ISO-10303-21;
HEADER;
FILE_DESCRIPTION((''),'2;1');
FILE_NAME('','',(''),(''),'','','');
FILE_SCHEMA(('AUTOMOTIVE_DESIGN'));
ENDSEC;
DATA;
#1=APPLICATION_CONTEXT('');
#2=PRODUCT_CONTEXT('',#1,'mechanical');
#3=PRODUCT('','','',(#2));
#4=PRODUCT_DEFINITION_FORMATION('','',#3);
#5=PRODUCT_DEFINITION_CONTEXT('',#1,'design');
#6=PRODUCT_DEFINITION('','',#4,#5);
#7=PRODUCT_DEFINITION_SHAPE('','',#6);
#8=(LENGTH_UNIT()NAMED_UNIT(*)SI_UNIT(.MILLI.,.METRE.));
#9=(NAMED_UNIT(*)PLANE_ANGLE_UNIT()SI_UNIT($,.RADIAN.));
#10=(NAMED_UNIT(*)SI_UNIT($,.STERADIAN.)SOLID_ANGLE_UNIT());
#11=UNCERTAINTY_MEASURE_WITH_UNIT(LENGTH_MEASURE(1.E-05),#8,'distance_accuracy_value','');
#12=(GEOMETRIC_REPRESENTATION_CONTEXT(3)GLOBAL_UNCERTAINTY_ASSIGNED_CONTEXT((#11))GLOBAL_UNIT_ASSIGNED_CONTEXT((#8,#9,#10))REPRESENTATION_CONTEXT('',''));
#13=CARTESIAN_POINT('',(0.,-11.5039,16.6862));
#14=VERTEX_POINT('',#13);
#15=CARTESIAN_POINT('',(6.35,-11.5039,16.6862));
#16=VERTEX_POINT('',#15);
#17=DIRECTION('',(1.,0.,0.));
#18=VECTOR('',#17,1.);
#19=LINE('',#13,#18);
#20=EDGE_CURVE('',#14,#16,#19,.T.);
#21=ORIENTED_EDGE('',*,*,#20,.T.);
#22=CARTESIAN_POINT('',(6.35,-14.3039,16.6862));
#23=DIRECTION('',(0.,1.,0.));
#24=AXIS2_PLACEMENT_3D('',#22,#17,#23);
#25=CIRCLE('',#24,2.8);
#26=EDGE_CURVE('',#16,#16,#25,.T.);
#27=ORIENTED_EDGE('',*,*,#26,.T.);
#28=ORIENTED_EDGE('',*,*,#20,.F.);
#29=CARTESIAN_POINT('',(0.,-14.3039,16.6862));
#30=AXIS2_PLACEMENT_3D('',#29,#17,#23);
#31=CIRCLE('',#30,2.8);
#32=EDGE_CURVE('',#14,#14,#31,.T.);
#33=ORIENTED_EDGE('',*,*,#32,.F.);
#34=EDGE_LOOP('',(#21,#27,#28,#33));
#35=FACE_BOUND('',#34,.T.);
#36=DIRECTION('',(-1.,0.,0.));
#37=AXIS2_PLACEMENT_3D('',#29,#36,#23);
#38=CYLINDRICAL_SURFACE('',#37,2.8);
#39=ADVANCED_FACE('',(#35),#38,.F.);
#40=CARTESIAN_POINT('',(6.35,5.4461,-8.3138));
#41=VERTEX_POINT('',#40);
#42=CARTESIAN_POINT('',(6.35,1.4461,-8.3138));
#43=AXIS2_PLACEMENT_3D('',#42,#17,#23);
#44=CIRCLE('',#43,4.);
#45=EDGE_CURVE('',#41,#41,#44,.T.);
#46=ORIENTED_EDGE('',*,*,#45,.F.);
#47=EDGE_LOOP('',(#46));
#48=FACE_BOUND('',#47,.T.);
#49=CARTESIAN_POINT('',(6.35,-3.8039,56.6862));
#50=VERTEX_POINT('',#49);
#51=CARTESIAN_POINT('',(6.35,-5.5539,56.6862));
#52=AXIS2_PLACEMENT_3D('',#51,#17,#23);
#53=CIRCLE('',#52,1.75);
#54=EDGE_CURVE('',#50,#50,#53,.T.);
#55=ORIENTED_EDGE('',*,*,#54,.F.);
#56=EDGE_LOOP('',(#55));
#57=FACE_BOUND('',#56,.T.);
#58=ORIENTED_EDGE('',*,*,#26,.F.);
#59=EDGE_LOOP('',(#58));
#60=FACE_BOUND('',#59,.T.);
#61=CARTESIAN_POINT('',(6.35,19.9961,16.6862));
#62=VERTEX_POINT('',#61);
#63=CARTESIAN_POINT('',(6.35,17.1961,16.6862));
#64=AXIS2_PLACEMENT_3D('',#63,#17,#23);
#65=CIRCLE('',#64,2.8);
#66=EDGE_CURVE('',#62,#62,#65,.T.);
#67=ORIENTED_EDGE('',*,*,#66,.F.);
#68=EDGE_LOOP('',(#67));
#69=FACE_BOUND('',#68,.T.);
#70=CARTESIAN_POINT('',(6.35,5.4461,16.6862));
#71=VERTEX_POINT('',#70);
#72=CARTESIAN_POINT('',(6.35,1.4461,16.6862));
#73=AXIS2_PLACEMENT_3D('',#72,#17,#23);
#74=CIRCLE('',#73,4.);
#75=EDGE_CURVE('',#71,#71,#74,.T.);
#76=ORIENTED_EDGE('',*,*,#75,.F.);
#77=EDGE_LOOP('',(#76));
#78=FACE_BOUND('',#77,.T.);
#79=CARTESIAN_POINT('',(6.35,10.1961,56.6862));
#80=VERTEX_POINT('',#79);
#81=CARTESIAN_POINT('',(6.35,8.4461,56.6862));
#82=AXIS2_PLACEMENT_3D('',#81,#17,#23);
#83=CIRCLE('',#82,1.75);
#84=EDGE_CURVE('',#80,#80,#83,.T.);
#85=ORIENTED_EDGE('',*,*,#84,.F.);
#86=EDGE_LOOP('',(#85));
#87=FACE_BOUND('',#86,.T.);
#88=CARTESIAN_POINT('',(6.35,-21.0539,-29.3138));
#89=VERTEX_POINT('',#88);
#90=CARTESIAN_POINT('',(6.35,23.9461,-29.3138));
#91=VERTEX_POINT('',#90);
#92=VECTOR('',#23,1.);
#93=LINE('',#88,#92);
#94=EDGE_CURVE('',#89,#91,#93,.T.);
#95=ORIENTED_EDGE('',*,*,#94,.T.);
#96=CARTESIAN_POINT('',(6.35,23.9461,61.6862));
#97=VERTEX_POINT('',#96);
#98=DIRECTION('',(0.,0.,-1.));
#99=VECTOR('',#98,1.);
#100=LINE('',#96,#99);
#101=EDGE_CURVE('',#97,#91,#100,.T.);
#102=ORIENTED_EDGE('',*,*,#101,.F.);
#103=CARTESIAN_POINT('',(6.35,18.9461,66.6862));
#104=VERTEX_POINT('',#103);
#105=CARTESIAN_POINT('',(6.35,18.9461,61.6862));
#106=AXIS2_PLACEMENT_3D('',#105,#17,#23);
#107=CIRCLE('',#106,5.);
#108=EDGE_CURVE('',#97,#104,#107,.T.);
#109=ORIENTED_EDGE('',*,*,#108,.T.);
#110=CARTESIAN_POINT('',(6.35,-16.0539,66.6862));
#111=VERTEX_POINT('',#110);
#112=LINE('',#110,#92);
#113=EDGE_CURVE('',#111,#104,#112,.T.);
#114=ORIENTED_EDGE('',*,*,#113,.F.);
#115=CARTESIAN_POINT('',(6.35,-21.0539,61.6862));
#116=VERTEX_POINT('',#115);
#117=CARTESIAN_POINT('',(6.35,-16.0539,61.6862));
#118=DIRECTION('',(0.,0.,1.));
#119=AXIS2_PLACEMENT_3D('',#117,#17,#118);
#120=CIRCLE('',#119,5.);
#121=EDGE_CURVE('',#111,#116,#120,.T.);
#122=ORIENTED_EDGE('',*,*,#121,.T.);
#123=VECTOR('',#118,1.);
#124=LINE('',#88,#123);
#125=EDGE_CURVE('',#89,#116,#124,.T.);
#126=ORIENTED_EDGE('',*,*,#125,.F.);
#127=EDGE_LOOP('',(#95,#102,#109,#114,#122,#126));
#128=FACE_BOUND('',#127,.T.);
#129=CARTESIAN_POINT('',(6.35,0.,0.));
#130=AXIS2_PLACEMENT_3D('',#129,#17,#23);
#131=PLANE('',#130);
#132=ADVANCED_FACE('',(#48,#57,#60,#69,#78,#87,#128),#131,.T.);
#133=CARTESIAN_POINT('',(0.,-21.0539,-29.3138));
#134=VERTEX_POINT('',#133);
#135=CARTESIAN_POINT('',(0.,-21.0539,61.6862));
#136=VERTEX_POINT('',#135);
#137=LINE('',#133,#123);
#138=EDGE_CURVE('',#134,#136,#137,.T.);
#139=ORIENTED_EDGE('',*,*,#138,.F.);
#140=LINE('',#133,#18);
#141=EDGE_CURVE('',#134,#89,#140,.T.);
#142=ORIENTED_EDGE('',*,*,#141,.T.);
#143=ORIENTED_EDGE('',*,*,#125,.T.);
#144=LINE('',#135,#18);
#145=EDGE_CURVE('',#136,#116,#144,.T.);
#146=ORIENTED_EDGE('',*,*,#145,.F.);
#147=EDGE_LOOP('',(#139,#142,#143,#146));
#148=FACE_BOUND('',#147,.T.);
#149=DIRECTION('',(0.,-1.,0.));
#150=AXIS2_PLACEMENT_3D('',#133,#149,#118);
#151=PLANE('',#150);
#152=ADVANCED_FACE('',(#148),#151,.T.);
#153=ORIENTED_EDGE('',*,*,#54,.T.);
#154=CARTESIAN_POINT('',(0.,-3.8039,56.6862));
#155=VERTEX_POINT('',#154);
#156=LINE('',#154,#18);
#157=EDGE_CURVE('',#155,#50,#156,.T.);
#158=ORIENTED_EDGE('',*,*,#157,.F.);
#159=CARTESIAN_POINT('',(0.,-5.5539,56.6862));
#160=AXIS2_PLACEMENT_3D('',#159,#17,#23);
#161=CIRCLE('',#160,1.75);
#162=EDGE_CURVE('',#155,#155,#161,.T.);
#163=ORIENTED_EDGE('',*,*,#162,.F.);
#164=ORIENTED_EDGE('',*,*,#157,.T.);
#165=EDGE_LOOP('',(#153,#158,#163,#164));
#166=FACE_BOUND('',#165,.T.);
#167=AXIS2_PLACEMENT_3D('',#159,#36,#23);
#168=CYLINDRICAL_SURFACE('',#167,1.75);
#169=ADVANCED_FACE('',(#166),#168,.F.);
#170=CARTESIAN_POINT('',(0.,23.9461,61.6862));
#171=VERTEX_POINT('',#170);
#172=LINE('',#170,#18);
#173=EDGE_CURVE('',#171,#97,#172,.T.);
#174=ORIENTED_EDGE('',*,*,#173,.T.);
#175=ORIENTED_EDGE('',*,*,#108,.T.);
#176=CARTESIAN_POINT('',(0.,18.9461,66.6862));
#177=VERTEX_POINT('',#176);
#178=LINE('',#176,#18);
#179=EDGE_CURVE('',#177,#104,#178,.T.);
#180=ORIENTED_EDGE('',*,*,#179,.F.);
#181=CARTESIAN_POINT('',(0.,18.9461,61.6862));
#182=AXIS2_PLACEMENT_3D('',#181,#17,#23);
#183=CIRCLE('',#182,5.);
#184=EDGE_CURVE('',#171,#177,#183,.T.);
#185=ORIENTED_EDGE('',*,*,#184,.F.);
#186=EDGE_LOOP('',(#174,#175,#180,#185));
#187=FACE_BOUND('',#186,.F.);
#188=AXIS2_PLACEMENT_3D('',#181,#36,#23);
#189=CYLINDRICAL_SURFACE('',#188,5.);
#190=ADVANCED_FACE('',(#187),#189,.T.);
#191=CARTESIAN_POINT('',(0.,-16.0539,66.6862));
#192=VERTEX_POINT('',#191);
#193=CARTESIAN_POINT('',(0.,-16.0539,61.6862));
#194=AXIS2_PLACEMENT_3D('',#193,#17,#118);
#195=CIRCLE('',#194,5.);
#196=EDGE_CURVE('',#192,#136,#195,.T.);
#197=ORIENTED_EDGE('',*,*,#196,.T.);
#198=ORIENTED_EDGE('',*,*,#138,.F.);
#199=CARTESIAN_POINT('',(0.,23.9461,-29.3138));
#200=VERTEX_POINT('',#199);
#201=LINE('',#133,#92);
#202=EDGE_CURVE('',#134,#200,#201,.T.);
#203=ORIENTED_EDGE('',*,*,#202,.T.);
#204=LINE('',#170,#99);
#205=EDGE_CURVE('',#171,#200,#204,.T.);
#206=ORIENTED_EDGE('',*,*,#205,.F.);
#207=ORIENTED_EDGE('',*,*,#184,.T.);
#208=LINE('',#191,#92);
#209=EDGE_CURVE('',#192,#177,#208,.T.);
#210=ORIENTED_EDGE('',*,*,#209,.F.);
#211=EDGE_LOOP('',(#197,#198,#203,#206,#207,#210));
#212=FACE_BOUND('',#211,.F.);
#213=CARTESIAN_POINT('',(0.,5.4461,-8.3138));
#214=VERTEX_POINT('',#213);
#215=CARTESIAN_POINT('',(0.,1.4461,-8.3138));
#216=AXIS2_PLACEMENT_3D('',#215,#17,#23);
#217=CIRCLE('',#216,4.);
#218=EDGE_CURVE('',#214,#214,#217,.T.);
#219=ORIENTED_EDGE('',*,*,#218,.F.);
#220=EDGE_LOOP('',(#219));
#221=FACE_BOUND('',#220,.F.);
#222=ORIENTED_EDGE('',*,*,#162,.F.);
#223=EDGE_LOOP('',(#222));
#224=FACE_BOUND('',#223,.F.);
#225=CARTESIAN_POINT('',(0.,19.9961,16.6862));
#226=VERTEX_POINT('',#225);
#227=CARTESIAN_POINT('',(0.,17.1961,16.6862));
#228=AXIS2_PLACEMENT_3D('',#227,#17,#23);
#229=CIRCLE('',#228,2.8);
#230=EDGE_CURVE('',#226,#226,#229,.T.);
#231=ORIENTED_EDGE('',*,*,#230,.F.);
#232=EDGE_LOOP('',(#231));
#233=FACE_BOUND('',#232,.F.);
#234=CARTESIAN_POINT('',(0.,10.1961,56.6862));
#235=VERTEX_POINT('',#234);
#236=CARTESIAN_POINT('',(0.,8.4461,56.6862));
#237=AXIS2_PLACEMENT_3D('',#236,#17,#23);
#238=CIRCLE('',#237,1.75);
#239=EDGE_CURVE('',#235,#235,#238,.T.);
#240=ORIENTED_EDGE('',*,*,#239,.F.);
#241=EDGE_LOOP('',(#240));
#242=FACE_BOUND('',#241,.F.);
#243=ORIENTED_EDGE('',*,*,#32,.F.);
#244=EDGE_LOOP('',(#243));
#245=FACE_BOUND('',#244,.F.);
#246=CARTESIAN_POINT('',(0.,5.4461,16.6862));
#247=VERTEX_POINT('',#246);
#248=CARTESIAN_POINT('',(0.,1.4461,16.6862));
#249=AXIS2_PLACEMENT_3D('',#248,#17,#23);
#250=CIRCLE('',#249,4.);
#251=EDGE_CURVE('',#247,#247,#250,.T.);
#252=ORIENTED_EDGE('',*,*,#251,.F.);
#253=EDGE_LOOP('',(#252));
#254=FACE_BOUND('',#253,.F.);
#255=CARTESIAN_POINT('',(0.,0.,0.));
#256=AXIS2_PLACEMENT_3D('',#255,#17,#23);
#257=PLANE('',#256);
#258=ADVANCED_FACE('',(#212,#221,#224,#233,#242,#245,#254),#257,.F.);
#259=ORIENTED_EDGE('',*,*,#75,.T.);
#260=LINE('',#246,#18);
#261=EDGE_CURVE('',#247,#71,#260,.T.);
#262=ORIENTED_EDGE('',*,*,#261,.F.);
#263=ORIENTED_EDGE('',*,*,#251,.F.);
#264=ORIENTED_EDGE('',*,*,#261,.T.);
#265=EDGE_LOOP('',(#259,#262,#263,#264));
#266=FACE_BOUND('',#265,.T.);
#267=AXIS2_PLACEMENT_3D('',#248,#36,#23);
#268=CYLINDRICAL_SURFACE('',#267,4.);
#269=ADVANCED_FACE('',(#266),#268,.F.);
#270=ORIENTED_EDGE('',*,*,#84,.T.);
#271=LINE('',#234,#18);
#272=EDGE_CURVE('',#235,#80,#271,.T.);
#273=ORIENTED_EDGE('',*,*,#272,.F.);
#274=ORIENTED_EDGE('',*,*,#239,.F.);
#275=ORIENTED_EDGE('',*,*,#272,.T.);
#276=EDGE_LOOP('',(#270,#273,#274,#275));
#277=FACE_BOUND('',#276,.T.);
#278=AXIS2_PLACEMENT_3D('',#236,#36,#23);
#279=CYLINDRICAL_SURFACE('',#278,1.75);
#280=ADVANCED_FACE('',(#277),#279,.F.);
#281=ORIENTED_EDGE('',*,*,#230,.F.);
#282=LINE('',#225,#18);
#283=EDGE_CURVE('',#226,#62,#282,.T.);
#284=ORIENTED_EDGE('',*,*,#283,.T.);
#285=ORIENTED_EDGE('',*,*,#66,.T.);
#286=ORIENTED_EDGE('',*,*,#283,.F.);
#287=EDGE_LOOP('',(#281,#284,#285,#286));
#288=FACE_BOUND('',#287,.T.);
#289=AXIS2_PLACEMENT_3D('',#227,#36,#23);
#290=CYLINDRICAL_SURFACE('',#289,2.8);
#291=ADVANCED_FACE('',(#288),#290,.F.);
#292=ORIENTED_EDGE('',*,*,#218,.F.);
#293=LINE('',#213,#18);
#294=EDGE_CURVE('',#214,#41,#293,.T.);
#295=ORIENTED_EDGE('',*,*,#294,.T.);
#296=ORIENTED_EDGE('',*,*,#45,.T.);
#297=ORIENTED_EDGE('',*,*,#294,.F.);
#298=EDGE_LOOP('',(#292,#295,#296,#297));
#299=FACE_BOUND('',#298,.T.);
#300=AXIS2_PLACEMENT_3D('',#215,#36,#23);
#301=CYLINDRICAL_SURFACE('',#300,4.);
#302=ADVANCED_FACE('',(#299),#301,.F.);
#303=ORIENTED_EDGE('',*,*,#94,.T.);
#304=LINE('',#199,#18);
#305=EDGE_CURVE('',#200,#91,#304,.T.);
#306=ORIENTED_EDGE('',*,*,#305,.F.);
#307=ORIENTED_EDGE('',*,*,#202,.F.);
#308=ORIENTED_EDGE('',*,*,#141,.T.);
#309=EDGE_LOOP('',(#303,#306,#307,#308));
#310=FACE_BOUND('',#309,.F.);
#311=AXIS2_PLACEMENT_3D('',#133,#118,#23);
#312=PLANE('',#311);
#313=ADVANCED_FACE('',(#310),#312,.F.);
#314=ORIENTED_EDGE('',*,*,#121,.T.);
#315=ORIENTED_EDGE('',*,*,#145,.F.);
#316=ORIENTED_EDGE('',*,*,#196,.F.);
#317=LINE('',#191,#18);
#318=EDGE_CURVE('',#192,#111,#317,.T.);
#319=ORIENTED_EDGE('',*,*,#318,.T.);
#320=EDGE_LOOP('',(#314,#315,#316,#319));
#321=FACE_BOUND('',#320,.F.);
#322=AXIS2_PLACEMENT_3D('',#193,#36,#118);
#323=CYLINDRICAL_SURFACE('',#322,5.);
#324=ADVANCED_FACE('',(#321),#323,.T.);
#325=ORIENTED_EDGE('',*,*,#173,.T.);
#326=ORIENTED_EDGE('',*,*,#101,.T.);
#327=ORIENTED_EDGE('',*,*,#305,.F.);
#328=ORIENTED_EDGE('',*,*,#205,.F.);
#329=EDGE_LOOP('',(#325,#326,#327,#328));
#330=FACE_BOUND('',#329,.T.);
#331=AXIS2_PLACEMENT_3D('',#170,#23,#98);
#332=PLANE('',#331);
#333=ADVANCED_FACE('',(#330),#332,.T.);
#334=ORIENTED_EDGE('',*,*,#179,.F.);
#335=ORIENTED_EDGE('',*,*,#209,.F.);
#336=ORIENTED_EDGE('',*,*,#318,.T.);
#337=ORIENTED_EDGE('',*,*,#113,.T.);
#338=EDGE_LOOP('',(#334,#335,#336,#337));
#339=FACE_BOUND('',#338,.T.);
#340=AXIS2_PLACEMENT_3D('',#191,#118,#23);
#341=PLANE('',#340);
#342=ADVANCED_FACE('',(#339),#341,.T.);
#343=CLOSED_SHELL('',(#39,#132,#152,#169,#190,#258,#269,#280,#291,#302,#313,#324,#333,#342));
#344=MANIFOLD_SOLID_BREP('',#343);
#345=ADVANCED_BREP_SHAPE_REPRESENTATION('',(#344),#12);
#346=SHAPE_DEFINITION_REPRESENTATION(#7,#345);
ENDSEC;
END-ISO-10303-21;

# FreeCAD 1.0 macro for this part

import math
import FreeCAD as App
import Part
import Sketcher
from FreeCAD import Vector

doc = App.newDocument("Part")
params = doc.addObject("Spreadsheet::Sheet", "Params")
for row, (alias, value) in enumerate([
    ("sketch1_diameter", "8 mm"),
    ("sketch1_radius", "5 mm"),
    ("sketch1_diameter2", "5.6 mm"),
    ("sketch1_diameter3", "3.5 mm"),
    ("sketch1_width", "45 mm"),
    ("pad1_length", "6.35 mm"),
], start=1):
    params.set(f"A{row}", alias)
    params.set(f"B{row}", "=" + value)
    params.setAlias(f"B{row}", alias)

body = doc.addObject("PartDesign::Body", "Body")

sketch1 = body.newObject("Sketcher::SketchObject", "Sketch")
sketch1.AttachmentSupport = (doc.getObject("YZ_Plane"), [""])
sketch1.MapMode = "FlatFace"
sketch1.addGeometry(Part.LineSegment(Vector(18.9, 66.7, 0), Vector(-16.1, 66.7, 0)), False)
sketch1.addGeometry(Part.ArcOfCircle(Part.Circle(Vector(-16.1, 61.7, 0), Vector(0, 0, 1), 5), math.radians(90), math.radians(180)), False)
sketch1.addGeometry(Part.LineSegment(Vector(-21.1, 61.7, 0), Vector(-21.1, -29.3, 0)), False)
sketch1.addGeometry(Part.LineSegment(Vector(-21.1, -29.3, 0), Vector(23.9, -29.3, 0)), False)
sketch1.addGeometry(Part.LineSegment(Vector(23.9, -29.3, 0), Vector(23.9, 61.7, 0)), False)
sketch1.addGeometry(Part.ArcOfCircle(Part.Circle(Vector(18.9, 61.7, 0), Vector(0, 0, 1), 5), math.radians(0), math.radians(90)), False)
sketch1.addGeometry(Part.Circle(Vector(-14.3, 16.7, 0), Vector(0, 0, 1), 2.8), False)
sketch1.addGeometry(Part.Circle(Vector(1.4, -8.3, 0), Vector(0, 0, 1), 4), False)
sketch1.addGeometry(Part.Circle(Vector(1.4, 16.7, 0), Vector(0, 0, 1), 4), False)
sketch1.addGeometry(Part.Circle(Vector(17.2, 16.7, 0), Vector(0, 0, 1), 2.8), False)
sketch1.addGeometry(Part.Circle(Vector(-5.6, 56.7, 0), Vector(0, 0, 1), 1.8), False)
sketch1.addGeometry(Part.Circle(Vector(8.4, 56.7, 0), Vector(0, 0, 1), 1.8), False)
sketch1.addConstraint(Sketcher.Constraint("Tangent", 0, 2, 1, 1))
sketch1.addConstraint(Sketcher.Constraint("Tangent", 1, 2, 2, 1))
sketch1.addConstraint(Sketcher.Constraint("Coincident", 2, 2, 3, 1))
sketch1.addConstraint(Sketcher.Constraint("Coincident", 3, 2, 4, 1))
sketch1.addConstraint(Sketcher.Constraint("Tangent", 4, 2, 5, 1))
sketch1.addConstraint(Sketcher.Constraint("Tangent", 5, 2, 0, 1))
sketch1.addConstraint(Sketcher.Constraint("Horizontal", 0))
sketch1.addConstraint(Sketcher.Constraint("Vertical", 2))
sketch1.addConstraint(Sketcher.Constraint("Horizontal", 3))
sketch1.addConstraint(Sketcher.Constraint("Vertical", 4))
sketch1.addConstraint(Sketcher.Constraint("Equal", 1, 5))
sketch1.addConstraint(Sketcher.Constraint("Equal", 7, 8))
sketch1.addConstraint(Sketcher.Constraint("Equal", 6, 9))
sketch1.addConstraint(Sketcher.Constraint("Equal", 10, 11))
sketch1.addConstraint(Sketcher.Constraint("Horizontal", 6, 3, 8, 3))
sketch1.addConstraint(Sketcher.Constraint("Horizontal", 8, 3, 9, 3))
sketch1.addConstraint(Sketcher.Constraint("Horizontal", 10, 3, 11, 3))
sketch1.addConstraint(Sketcher.Constraint("Vertical", 7, 3, 8, 3))
sketch1.addConstraint(Sketcher.Constraint("Diameter", 7, 8.0))
sketch1.addConstraint(Sketcher.Constraint("Radius", 1, 5.0))
sketch1.addConstraint(Sketcher.Constraint("Diameter", 6, 5.6))
sketch1.addConstraint(Sketcher.Constraint("Diameter", 10, 3.5))
sketch1.addConstraint(Sketcher.Constraint("DistanceX", 3, 1, 3, 2, 45.0))
sketch1.addConstraint(Sketcher.Constraint("DistanceY", 2, 2, 2, 1, 91.0))
sketch1.addConstraint(Sketcher.Constraint("DistanceY", 6, 3, 1, 3, 45.0))
sketch1.addConstraint(Sketcher.Constraint("DistanceY", 7, 3, 6, 3, 25.0))
sketch1.addConstraint(Sketcher.Constraint("DistanceY", 10, 3, 1, 3, 5.0))
sketch1.addConstraint(Sketcher.Constraint("DistanceX", 10, 3, 11, 3, 14.0))
sketch1.addConstraint(Sketcher.Constraint("DistanceX", 6, 3, 9, 3, 31.5))
sketch1.addConstraint(Sketcher.Constraint("DistanceX", 1, 2, 10, 3, 15.5))
sketch1.addConstraint(Sketcher.Constraint("DistanceX", 2, 2, 7, 3, 22.5))
sketch1.addConstraint(Sketcher.Constraint("DistanceX", 6, 3, 7, 3, 15.75))
sketch1.addConstraint(Sketcher.Constraint("DistanceX", 1, 3, -1, 1, 16.054))
sketch1.addConstraint(Sketcher.Constraint("DistanceY", -1, 1, 1, 3, 61.6862))
sketch1.setExpression("Constraints[18]", "Params.sketch1_diameter")
sketch1.setExpression("Constraints[19]", "Params.sketch1_radius")
sketch1.setExpression("Constraints[20]", "Params.sketch1_diameter2")
sketch1.setExpression("Constraints[21]", "Params.sketch1_diameter3")
sketch1.setExpression("Constraints[22]", "Params.sketch1_width")
pad1 = body.newObject("PartDesign::Pad", "Pad")
pad1.Profile = sketch1
pad1.setExpression("Length", "Params.pad1_length")

doc.recompute()
